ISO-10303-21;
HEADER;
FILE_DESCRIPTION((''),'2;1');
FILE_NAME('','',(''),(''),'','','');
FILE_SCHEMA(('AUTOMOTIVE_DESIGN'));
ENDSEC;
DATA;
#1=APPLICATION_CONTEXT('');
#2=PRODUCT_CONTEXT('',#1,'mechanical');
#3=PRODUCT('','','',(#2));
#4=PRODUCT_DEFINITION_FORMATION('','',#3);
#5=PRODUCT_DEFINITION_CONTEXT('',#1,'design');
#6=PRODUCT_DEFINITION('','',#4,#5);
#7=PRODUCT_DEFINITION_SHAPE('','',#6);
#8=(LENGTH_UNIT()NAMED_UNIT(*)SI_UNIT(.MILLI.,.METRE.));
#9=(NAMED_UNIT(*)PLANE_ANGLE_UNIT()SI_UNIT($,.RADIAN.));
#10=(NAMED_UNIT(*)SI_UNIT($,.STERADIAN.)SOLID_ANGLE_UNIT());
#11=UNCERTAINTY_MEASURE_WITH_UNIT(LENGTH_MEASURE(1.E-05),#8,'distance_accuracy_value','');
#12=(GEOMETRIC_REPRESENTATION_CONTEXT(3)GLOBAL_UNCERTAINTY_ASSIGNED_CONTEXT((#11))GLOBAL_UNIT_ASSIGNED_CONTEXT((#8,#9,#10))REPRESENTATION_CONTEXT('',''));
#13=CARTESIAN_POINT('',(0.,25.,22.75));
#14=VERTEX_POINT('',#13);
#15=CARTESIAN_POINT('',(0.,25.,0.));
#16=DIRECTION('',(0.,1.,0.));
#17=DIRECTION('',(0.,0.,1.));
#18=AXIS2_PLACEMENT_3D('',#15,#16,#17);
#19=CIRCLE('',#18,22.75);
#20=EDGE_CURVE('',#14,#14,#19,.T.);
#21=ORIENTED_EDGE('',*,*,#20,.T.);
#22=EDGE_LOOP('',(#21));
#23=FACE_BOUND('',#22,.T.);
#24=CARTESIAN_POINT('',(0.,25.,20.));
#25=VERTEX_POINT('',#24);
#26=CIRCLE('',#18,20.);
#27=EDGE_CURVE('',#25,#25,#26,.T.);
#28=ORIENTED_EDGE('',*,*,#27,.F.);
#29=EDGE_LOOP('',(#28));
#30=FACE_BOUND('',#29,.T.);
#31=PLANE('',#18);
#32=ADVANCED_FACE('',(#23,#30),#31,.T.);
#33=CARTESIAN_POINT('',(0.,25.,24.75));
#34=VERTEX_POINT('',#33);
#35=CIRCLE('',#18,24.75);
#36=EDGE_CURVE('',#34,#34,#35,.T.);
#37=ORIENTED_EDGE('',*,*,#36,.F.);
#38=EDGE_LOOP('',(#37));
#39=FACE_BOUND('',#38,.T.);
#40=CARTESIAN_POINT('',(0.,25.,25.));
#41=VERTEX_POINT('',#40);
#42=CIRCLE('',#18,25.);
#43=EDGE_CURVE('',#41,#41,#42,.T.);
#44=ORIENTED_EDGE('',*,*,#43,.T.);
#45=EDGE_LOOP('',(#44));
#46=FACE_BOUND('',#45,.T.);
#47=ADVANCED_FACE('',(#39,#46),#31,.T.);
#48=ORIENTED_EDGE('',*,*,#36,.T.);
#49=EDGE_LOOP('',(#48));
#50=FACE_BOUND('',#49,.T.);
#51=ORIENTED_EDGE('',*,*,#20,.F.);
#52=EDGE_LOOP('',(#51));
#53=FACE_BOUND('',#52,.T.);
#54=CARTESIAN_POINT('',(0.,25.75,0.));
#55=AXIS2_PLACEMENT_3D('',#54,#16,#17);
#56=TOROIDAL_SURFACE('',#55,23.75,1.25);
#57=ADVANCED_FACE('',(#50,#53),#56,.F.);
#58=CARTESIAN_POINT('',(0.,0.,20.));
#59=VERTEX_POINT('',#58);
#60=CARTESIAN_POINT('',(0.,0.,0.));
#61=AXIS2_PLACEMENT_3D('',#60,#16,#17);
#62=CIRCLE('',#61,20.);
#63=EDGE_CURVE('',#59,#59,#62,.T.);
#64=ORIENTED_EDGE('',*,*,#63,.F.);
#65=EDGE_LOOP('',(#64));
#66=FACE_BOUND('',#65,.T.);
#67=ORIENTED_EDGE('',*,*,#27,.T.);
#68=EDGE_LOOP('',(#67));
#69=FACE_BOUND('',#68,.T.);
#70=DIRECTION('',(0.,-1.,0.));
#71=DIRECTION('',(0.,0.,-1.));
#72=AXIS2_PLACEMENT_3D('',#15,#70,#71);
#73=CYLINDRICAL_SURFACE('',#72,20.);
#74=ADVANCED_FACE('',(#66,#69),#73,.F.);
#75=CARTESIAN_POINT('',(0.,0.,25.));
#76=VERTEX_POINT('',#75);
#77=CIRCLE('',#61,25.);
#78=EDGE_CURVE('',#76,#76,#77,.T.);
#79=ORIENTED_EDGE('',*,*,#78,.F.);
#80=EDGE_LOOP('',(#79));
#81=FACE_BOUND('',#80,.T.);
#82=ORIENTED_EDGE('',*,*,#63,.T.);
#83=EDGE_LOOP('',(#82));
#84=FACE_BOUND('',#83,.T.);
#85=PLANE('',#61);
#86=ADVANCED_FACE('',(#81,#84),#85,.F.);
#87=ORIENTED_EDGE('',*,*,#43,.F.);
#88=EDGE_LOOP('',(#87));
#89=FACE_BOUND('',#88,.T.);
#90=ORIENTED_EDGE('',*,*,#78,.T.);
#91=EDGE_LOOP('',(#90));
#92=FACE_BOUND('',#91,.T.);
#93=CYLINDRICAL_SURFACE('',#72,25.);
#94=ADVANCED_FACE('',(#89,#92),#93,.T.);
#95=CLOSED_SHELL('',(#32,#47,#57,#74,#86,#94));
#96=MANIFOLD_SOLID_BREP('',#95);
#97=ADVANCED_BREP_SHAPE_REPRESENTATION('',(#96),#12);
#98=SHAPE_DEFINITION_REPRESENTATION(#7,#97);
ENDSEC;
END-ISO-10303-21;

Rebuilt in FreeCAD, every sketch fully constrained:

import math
import FreeCAD as App
import Part
import Sketcher

V = App.Vector

doc = App.newDocument("Part")
params = doc.addObject("Spreadsheet::Sheet", "Params")
for row, (alias, value) in enumerate([
    ("sketch1_diameter", "50 mm"),
    ("sketch1_diameter2", "40 mm"),
    ("pad1_length", "25 mm"),
    ("sketch2_width", "2 mm"),
    ("sketch2_radius", "1.25 mm"),
    ("groove_angle", "360 deg"),
], start=1):
    params.set(f"A{row}", alias)
    params.set(f"B{row}", "=" + value)
    params.setAlias(f"B{row}", alias)

body = doc.addObject("PartDesign::Body", "Body")

sketch1 = body.newObject("Sketcher::SketchObject", "Sketch")
sketch1.AttachmentSupport = (doc.getObject("XZ_Plane"), [""])
sketch1.MapMode = "FlatFace"
sketch1.addGeometry([
    Part.Circle(V(0, 0, 0), V(0, 0, 1), 25),
    Part.Circle(V(0, 0, 0), V(0, 0, 1), 20),
], False)
sketch1.addConstraint([
    Sketcher.Constraint("Coincident", 0, 3, -1, 1),
    Sketcher.Constraint("Coincident", 1, 3, -1, 1),
    Sketcher.Constraint("Diameter", 0, 50.0),
    Sketcher.Constraint("Diameter", 1, 40.0),
])
sketch1.setExpression("Constraints[2]", "Params.sketch1_diameter")
sketch1.setExpression("Constraints[3]", "Params.sketch1_diameter2")
pad1 = body.newObject("PartDesign::Pad", "Pad")
pad1.Profile = sketch1
pad1.setExpression("Length", "Params.pad1_length")
pad1.Reversed = True

sketch2 = body.newObject("Sketcher::SketchObject", "Sketch001")
sketch2.AttachmentSupport = (doc.getObject("XY_Plane"), [""])
sketch2.MapMode = "FlatFace"
sketch2.addGeometry([
    Part.LineSegment(V(-22.8, 25, 0), V(-24.8, 25, 0)),
    Part.ArcOfCircle(Part.Circle(V(-23.8, 25.8, 0), V(0, 0, 1), 1.2), math.radians(-143), math.radians(-37)),
], False)
sketch2.addConstraint([
    Sketcher.Constraint("Coincident", 0, 1, 1, 2),
    Sketcher.Constraint("Coincident", 1, 1, 0, 2),
    Sketcher.Constraint("Horizontal", 0),
    Sketcher.Constraint("DistanceX", 0, 2, 0, 1, 2.0),
    Sketcher.Constraint("Radius", 1, 1.25),
    Sketcher.Constraint("DistanceY", -1, 1, 0, 1, 25.0),
    Sketcher.Constraint("DistanceX", 1, 3, -1, 1, 23.75),
])
sketch2.setExpression("Constraints[3]", "Params.sketch2_width")
sketch2.setExpression("Constraints[4]", "Params.sketch2_radius")
groove = body.newObject("PartDesign::Groove", "Groove")
groove.Profile = sketch2
groove.ReferenceAxis = (sketch2, ["V_Axis"])
groove.setExpression("Angle", "Params.groove_angle")

doc.recompute()
